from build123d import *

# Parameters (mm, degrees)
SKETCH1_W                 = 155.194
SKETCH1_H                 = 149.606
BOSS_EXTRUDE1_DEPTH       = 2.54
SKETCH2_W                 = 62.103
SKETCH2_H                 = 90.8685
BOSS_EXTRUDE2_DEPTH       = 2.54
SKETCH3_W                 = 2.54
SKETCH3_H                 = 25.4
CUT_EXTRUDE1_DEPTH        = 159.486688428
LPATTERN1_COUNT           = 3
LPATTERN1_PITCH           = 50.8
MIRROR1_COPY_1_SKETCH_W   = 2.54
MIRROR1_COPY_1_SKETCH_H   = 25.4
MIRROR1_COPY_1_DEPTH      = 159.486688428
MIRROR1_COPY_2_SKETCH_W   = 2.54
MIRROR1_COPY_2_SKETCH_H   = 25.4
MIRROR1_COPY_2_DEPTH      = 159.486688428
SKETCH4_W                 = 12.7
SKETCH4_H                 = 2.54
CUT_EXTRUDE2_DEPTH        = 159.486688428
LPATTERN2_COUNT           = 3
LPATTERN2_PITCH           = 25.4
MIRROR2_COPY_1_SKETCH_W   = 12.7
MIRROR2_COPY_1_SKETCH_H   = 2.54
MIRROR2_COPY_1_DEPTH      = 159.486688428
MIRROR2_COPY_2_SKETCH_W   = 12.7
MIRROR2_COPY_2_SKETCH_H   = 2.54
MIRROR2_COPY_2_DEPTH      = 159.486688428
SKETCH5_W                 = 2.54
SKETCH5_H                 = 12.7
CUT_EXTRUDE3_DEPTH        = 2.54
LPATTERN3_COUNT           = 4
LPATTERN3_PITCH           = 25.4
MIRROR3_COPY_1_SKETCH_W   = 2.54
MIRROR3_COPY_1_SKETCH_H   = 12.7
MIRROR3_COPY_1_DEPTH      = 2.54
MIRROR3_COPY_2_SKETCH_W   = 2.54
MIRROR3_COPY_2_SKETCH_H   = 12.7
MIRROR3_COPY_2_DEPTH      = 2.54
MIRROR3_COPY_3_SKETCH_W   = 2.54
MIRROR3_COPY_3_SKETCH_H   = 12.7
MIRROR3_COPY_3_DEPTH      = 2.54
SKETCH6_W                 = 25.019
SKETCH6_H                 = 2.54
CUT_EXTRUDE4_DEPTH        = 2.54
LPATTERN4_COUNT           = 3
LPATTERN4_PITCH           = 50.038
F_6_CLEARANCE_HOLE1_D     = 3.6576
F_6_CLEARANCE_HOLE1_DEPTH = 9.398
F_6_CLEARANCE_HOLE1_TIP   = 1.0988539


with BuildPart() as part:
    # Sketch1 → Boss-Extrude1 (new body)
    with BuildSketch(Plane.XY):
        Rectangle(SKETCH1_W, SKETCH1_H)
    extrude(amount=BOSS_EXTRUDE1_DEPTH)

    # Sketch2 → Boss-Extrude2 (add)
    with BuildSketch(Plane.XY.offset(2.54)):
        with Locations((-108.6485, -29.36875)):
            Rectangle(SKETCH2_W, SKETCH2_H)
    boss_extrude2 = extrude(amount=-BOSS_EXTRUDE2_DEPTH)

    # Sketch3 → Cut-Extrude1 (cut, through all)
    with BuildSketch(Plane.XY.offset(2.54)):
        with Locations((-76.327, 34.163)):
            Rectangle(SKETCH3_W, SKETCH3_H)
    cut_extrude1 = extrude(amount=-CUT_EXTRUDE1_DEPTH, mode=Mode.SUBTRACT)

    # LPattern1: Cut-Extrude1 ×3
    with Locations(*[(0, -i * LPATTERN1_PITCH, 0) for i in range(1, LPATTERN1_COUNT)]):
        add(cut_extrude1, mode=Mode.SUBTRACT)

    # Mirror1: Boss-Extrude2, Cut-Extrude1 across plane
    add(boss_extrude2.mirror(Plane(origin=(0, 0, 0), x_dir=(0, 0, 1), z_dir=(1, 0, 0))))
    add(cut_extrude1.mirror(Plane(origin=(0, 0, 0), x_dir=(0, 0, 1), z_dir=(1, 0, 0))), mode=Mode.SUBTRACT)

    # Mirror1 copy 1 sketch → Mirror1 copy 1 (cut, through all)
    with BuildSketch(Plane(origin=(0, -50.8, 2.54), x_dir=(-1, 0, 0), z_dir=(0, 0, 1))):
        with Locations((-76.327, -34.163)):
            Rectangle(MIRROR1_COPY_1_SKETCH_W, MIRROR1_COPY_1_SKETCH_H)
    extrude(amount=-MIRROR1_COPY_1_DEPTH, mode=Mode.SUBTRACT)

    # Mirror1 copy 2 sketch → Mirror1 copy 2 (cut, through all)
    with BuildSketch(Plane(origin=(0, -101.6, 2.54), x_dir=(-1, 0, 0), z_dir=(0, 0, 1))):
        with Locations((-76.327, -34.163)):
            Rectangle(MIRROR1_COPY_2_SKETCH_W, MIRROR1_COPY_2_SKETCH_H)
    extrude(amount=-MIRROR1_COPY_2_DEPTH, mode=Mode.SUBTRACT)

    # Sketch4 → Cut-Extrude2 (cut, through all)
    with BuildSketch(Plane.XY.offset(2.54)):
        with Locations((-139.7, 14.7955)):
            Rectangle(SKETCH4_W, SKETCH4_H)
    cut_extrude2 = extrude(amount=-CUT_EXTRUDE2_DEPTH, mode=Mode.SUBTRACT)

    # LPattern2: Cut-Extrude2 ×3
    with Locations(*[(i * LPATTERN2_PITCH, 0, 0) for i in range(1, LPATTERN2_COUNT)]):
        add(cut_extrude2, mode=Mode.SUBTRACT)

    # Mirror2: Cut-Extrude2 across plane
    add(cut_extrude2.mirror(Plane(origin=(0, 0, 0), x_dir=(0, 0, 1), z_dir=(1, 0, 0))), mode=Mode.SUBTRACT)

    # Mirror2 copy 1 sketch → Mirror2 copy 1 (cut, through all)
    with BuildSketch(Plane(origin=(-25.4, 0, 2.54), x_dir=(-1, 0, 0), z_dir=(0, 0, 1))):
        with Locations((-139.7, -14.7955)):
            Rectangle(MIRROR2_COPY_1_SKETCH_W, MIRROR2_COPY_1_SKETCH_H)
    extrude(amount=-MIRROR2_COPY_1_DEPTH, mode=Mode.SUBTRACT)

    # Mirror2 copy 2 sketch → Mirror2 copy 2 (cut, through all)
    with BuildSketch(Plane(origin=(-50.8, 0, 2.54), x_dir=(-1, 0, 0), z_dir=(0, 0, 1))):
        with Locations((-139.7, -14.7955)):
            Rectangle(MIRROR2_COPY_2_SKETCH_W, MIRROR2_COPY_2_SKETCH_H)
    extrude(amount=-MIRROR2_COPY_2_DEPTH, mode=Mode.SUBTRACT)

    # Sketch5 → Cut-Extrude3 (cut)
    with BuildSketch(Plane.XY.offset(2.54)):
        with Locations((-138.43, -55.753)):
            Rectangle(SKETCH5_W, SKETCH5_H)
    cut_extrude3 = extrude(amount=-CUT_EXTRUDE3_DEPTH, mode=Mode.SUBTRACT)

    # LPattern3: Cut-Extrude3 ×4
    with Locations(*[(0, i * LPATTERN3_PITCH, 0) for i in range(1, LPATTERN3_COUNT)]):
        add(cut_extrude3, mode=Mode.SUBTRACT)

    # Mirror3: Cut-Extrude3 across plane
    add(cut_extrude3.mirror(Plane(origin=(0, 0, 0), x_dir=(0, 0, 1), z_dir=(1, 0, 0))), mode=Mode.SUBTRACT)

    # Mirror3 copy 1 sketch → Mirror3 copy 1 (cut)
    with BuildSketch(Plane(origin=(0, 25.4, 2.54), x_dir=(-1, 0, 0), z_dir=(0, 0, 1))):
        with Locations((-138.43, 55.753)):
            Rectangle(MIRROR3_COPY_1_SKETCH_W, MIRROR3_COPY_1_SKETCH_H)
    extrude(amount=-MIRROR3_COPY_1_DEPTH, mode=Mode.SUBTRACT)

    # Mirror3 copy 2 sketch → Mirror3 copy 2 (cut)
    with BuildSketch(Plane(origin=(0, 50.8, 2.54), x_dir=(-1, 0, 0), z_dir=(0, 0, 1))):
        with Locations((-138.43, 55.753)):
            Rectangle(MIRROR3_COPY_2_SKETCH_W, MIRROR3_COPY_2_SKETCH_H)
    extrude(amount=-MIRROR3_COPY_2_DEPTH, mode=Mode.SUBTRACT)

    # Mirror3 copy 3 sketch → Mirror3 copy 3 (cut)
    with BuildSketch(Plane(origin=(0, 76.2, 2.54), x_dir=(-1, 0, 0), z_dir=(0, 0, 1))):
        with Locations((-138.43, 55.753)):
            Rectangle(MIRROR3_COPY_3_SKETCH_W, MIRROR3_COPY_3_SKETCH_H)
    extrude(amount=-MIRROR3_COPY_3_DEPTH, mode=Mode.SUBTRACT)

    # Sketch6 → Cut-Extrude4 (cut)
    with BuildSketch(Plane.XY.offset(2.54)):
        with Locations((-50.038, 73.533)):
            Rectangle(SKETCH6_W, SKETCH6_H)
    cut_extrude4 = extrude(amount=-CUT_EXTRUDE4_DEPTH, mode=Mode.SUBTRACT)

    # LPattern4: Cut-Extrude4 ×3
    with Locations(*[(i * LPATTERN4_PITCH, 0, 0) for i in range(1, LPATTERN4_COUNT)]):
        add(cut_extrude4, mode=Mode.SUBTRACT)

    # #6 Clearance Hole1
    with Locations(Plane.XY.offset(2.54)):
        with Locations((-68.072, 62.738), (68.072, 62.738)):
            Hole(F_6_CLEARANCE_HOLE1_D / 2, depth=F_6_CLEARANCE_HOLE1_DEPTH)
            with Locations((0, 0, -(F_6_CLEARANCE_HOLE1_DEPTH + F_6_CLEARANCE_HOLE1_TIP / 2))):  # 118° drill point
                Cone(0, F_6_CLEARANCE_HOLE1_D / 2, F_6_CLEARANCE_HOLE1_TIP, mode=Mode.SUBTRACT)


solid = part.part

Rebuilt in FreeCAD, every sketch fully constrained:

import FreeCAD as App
import Part
import Sketcher
from FreeCAD import Vector
Q = App.Units.Quantity


def add_polygon(sketch, points):
    """Adds a closed chain of lines whose ends are joined by coincident constraints."""
    first, n = sketch.GeometryCount, len(points)
    for a, b in zip(points, points[1:] + points[:1]):
        sketch.addGeometry(Part.LineSegment(App.Vector(*a, 0), App.Vector(*b, 0)), False)
    for i in range(n):
        sketch.addConstraint(Sketcher.Constraint("Coincident", first + i, 2, first + (i + 1) % n, 1))

doc = App.newDocument("Part")
body = doc.addObject("PartDesign::Body", "Body")

# Sketch on XY plane
sketch1 = body.newObject("Sketcher::SketchObject", "Sketch")
sketch1.AttachmentSupport = (doc.getObject("XY_Plane"), [""])
sketch1.MapMode = "FlatFace"
add_polygon(sketch1, [(-78, 75), (-78, -75), (78, -75), (78, 75)])  # lines 0-3
sketch1.addConstraint([
    Sketcher.Constraint("Vertical", 0),
    Sketcher.Constraint("Horizontal", 1),
    Sketcher.Constraint("Vertical", 2),
    Sketcher.Constraint("Horizontal", 3),
    Sketcher.Constraint("Symmetric", 0, 2, 2, 2, -1, 1),
    Sketcher.Constraint("DistanceX", 1, 1, 1, 2, Q("6.11 in")),
    Sketcher.Constraint("DistanceY", 0, 2, 0, 1, Q("5.89 in")),
])
pad1 = body.newObject("PartDesign::Pad", "Pad")
pad1.Profile = sketch1
pad1.Length = Q("0.1 in")

# Sketch on XY plane
sketch2 = body.newObject("Sketcher::SketchObject", "Sketch001")
sketch2.AttachmentSupport = (doc.getObject("XY_Plane"), [""])
sketch2.MapMode = "FlatFace"
sketch2.AttachmentOffset = App.Placement(Vector(0, 0, 0.1 * 25.4), App.Rotation())
add_polygon(sketch2, [(-140, 16), (-140, -75), (-78, -75), (-78, 16)])  # lines 0-3
sketch2.addConstraint([
    Sketcher.Constraint("Vertical", 0),
    Sketcher.Constraint("Horizontal", 1),
    Sketcher.Constraint("Vertical", 2),
    Sketcher.Constraint("Horizontal", 3),
    Sketcher.Constraint("DistanceX", 0, 2, -1, 1, Q("5.5 in")),
    Sketcher.Constraint("DistanceX", 1, 1, 1, 2, Q("2.445 in")),
    Sketcher.Constraint("DistanceY", 0, 2, 0, 1, Q("3.5775 in")),
    Sketcher.Constraint("DistanceY", 0, 2, -1, 1, Q("2.945 in")),
])
pad2 = body.newObject("PartDesign::Pad", "Pad001")
pad2.Profile = sketch2
pad2.Length = Q("0.1 in")
pad2.Reversed = True

# Sketch on XY plane
sketch3 = body.newObject("Sketcher::SketchObject", "Sketch002")
sketch3.AttachmentSupport = (doc.getObject("XY_Plane"), [""])
sketch3.MapMode = "FlatFace"
sketch3.AttachmentOffset = App.Placement(Vector(0, 0, 0.1 * 25.4), App.Rotation())
add_polygon(sketch3, [(-77.6, 46.9), (-77.6, 21.5), (-75.1, 21.5), (-75.1, 46.9)])  # lines 0-3
sketch3.addConstraint([
    Sketcher.Constraint("Vertical", 0),
    Sketcher.Constraint("Horizontal", 1),
    Sketcher.Constraint("Vertical", 2),
    Sketcher.Constraint("Horizontal", 3),
    Sketcher.Constraint("DistanceY", 0, 2, 0, 1, Q("1 in")),
    Sketcher.Constraint("DistanceX", 1, 1, 1, 2, Q("0.1 in")),
    Sketcher.Constraint("DistanceX", 0, 2, -1, 1, Q("3.055 in")),
    Sketcher.Constraint("DistanceY", -1, 1, 0, 2, Q("0.845 in")),
])
pocket1 = body.newObject("PartDesign::Pocket", "Pocket")
pocket1.Profile = sketch3
pocket1.Type = "ThroughAll"
doc.recompute()

linearpattern = body.newObject("PartDesign::LinearPattern", "LinearPattern")
linearpattern.Originals = [pocket1]
linearpattern.Direction = (doc.getObject("Y_Axis"), [""])
linearpattern.Mode = "offset"
linearpattern.Offset = Q("2 in")
linearpattern.Occurrences = 3
linearpattern.Reversed = True
body.Tip = linearpattern
doc.recompute()

mirrored = body.newObject("PartDesign::Mirrored", "Mirrored")
mirrored.Originals = [pad2, pocket1]
mirrored.MirrorPlane = (doc.getObject("YZ_Plane"), [""])
body.Tip = mirrored

# Sketch on XY plane
sketch4 = body.newObject("Sketcher::SketchObject", "Sketch003")
sketch4.AttachmentSupport = (doc.getObject("XY_Plane"), [""])
sketch4.MapMode = "FlatFace"
sketch4.AttachmentOffset = App.Placement(Vector(0, 0, 0.1 * 25.4), App.Rotation())
add_polygon(sketch4, [(77.6, -29.3), (77.6, -3.9), (75.1, -3.9), (75.1, -29.3)])  # lines 0-3
sketch4.addConstraint([
    Sketcher.Constraint("Vertical", 0),
    Sketcher.Constraint("Horizontal", 1),
    Sketcher.Constraint("Vertical", 2),
    Sketcher.Constraint("Horizontal", 3),
    Sketcher.Constraint("DistanceY", 0, 1, 0, 2, Q("1 in")),
    Sketcher.Constraint("DistanceX", 1, 2, 1, 1, Q("0.1 in")),
    Sketcher.Constraint("DistanceX", -1, 1, 0, 2, Q("3.055 in")),
    Sketcher.Constraint("DistanceY", 0, 2, -1, 1, Q("0.155 in")),
])
pocket2 = body.newObject("PartDesign::Pocket", "Pocket001")
pocket2.Profile = sketch4
pocket2.Type = "ThroughAll"

# Sketch on XY plane
sketch5 = body.newObject("Sketcher::SketchObject", "Sketch004")
sketch5.AttachmentSupport = (doc.getObject("XY_Plane"), [""])
sketch5.MapMode = "FlatFace"
sketch5.AttachmentOffset = App.Placement(Vector(0, 0, 0.1 * 25.4), App.Rotation())
add_polygon(sketch5, [(77.6, -80.1), (77.6, -54.7), (75.1, -54.7), (75.1, -80.1)])  # lines 0-3
sketch5.addConstraint([
    Sketcher.Constraint("Vertical", 0),
    Sketcher.Constraint("Horizontal", 1),
    Sketcher.Constraint("Vertical", 2),
    Sketcher.Constraint("Horizontal", 3),
    Sketcher.Constraint("DistanceY", 0, 1, 0, 2, Q("1 in")),
    Sketcher.Constraint("DistanceX", 1, 2, 1, 1, Q("0.1 in")),
    Sketcher.Constraint("DistanceX", -1, 1, 0, 2, Q("3.055 in")),
    Sketcher.Constraint("DistanceY", 0, 2, -1, 1, Q("2.155 in")),
])
pocket3 = body.newObject("PartDesign::Pocket", "Pocket002")
pocket3.Profile = sketch5
pocket3.Type = "ThroughAll"

# Sketch on XY plane
sketch6 = body.newObject("Sketcher::SketchObject", "Sketch005")
sketch6.AttachmentSupport = (doc.getObject("XY_Plane"), [""])
sketch6.MapMode = "FlatFace"
sketch6.AttachmentOffset = App.Placement(Vector(0, 0, 0.1 * 25.4), App.Rotation())
add_polygon(sketch6, [(-146.1, 16.1), (-146.1, 13.5), (-133.3, 13.5), (-133.3, 16.1)])  # lines 0-3
sketch6.addConstraint([
    Sketcher.Constraint("Vertical", 0),
    Sketcher.Constraint("Horizontal", 1),
    Sketcher.Constraint("Vertical", 2),
    Sketcher.Constraint("Horizontal", 3),
    Sketcher.Constraint("DistanceX", 1, 1, 1, 2, Q("0.5 in")),
    Sketcher.Constraint("DistanceY", 0, 2, 0, 1, Q("0.1 in")),
    Sketcher.Constraint("DistanceX", 0, 2, -1, 1, Q("5.75 in")),
    Sketcher.Constraint("DistanceY", -1, 1, 0, 2, Q("0.5325 in")),
])
pocket4 = body.newObject("PartDesign::Pocket", "Pocket003")
pocket4.Profile = sketch6
pocket4.Type = "ThroughAll"
doc.recompute()

linearpattern2 = body.newObject("PartDesign::LinearPattern", "LinearPattern001")
linearpattern2.Originals = [pocket4]
linearpattern2.Direction = (doc.getObject("X_Axis"), [""])
linearpattern2.Mode = "offset"
linearpattern2.Offset = Q("1 in")
linearpattern2.Occurrences = 3
body.Tip = linearpattern2
doc.recompute()

mirrored2 = body.newObject("PartDesign::Mirrored", "Mirrored001")
mirrored2.Originals = [pocket4]
mirrored2.MirrorPlane = (doc.getObject("YZ_Plane"), [""])
body.Tip = mirrored2

# Sketch on XY plane
sketch7 = body.newObject("Sketcher::SketchObject", "Sketch006")
sketch7.AttachmentSupport = (doc.getObject("XY_Plane"), [""])
sketch7.MapMode = "FlatFace"
sketch7.AttachmentOffset = App.Placement(Vector(0, 0, 0.1 * 25.4), App.Rotation())
add_polygon(sketch7, [(120.7, 13.5), (120.7, 16.1), (108, 16.1), (108, 13.5)])  # lines 0-3
sketch7.addConstraint([
    Sketcher.Constraint("Vertical", 0),
    Sketcher.Constraint("Horizontal", 1),
    Sketcher.Constraint("Vertical", 2),
    Sketcher.Constraint("Horizontal", 3),
    Sketcher.Constraint("DistanceX", 1, 2, 1, 1, Q("0.5 in")),
    Sketcher.Constraint("DistanceY", 0, 1, 0, 2, Q("0.1 in")),
    Sketcher.Constraint("DistanceX", -1, 1, 0, 2, Q("4.75 in")),
    Sketcher.Constraint("DistanceY", -1, 1, 0, 2, Q("0.6325 in")),
])
pocket5 = body.newObject("PartDesign::Pocket", "Pocket004")
pocket5.Profile = sketch7
pocket5.Type = "ThroughAll"

# Sketch on XY plane
sketch8 = body.newObject("Sketcher::SketchObject", "Sketch007")
sketch8.AttachmentSupport = (doc.getObject("XY_Plane"), [""])
sketch8.MapMode = "FlatFace"
sketch8.AttachmentOffset = App.Placement(Vector(0, 0, 0.1 * 25.4), App.Rotation())
add_polygon(sketch8, [(95.2, 13.5), (95.2, 16.1), (82.5, 16.1), (82.5, 13.5)])  # lines 0-3
sketch8.addConstraint([
    Sketcher.Constraint("Vertical", 0),
    Sketcher.Constraint("Horizontal", 1),
    Sketcher.Constraint("Vertical", 2),
    Sketcher.Constraint("Horizontal", 3),
    Sketcher.Constraint("DistanceX", 1, 2, 1, 1, Q("0.5 in")),
    Sketcher.Constraint("DistanceY", 0, 1, 0, 2, Q("0.1 in")),
    Sketcher.Constraint("DistanceX", -1, 1, 0, 2, Q("3.75 in")),
    Sketcher.Constraint("DistanceY", -1, 1, 0, 2, Q("0.6325 in")),
])
pocket6 = body.newObject("PartDesign::Pocket", "Pocket005")
pocket6.Profile = sketch8
pocket6.Type = "ThroughAll"

# Sketch on XY plane
sketch9 = body.newObject("Sketcher::SketchObject", "Sketch008")
sketch9.AttachmentSupport = (doc.getObject("XY_Plane"), [""])
sketch9.MapMode = "FlatFace"
sketch9.AttachmentOffset = App.Placement(Vector(0, 0, 0.1 * 25.4), App.Rotation())
add_polygon(sketch9, [(-139.7, -49.4), (-139.7, -62.1), (-137.2, -62.1), (-137.2, -49.4)])  # lines 0-3
sketch9.addConstraint([
    Sketcher.Constraint("Vertical", 0),
    Sketcher.Constraint("Horizontal", 1),
    Sketcher.Constraint("Vertical", 2),
    Sketcher.Constraint("Horizontal", 3),
    Sketcher.Constraint("DistanceX", 1, 1, 1, 2, Q("0.1 in")),
    Sketcher.Constraint("DistanceY", 0, 2, 0, 1, Q("0.5 in")),
    Sketcher.Constraint("DistanceX", 0, 2, -1, 1, Q("5.5 in")),
    Sketcher.Constraint("DistanceY", 0, 2, -1, 1, Q("2.445 in")),
])
pocket7 = body.newObject("PartDesign::Pocket", "Pocket006")
pocket7.Profile = sketch9
pocket7.Length = Q("0.1 in")
doc.recompute()

linearpattern3 = body.newObject("PartDesign::LinearPattern", "LinearPattern002")
linearpattern3.Originals = [pocket7]
linearpattern3.Direction = (doc.getObject("Y_Axis"), [""])
linearpattern3.Mode = "offset"
linearpattern3.Offset = Q("1 in")
linearpattern3.Occurrences = 4
body.Tip = linearpattern3
doc.recompute()

mirrored3 = body.newObject("PartDesign::Mirrored", "Mirrored002")
mirrored3.Originals = [pocket7]
mirrored3.MirrorPlane = (doc.getObject("YZ_Plane"), [""])
body.Tip = mirrored3

# Sketch on XY plane
sketch10 = body.newObject("Sketcher::SketchObject", "Sketch009")
sketch10.AttachmentSupport = (doc.getObject("XY_Plane"), [""])
sketch10.MapMode = "FlatFace"
sketch10.AttachmentOffset = App.Placement(Vector(0, 0, 0.1 * 25.4), App.Rotation())
add_polygon(sketch10, [(139.7, -36.7), (139.7, -24), (137.2, -24), (137.2, -36.7)])  # lines 0-3
sketch10.addConstraint([
    Sketcher.Constraint("Vertical", 0),
    Sketcher.Constraint("Horizontal", 1),
    Sketcher.Constraint("Vertical", 2),
    Sketcher.Constraint("Horizontal", 3),
    Sketcher.Constraint("DistanceX", 1, 2, 1, 1, Q("0.1 in")),
    Sketcher.Constraint("DistanceY", 0, 1, 0, 2, Q("0.5 in")),
    Sketcher.Constraint("DistanceX", -1, 1, 0, 2, Q("5.5 in")),
    Sketcher.Constraint("DistanceY", 0, 2, -1, 1, Q("0.945 in")),
])
pocket8 = body.newObject("PartDesign::Pocket", "Pocket007")
pocket8.Profile = sketch10
pocket8.Length = Q("0.1 in")

# Sketch on XY plane
sketch11 = body.newObject("Sketcher::SketchObject", "Sketch010")
sketch11.AttachmentSupport = (doc.getObject("XY_Plane"), [""])
sketch11.MapMode = "FlatFace"
sketch11.AttachmentOffset = App.Placement(Vector(0, 0, 0.1 * 25.4), App.Rotation())
add_polygon(sketch11, [(139.7, -11.3), (139.7, 1.4), (137.2, 1.4), (137.2, -11.3)])  # lines 0-3
sketch11.addConstraint([
    Sketcher.Constraint("Vertical", 0),
    Sketcher.Constraint("Horizontal", 1),
    Sketcher.Constraint("Vertical", 2),
    Sketcher.Constraint("Horizontal", 3),
    Sketcher.Constraint("DistanceX", 1, 2, 1, 1, Q("0.1 in")),
    Sketcher.Constraint("DistanceY", 0, 1, 0, 2, Q("0.5 in")),
    Sketcher.Constraint("DistanceX", -1, 1, 0, 2, Q("5.5 in")),
    Sketcher.Constraint("DistanceY", -1, 1, 0, 2, Q("0.055 in")),
])
pocket9 = body.newObject("PartDesign::Pocket", "Pocket008")
pocket9.Profile = sketch11
pocket9.Length = Q("0.1 in")

# Sketch on XY plane
sketch12 = body.newObject("Sketcher::SketchObject", "Sketch011")
sketch12.AttachmentSupport = (doc.getObject("XY_Plane"), [""])
sketch12.MapMode = "FlatFace"
sketch12.AttachmentOffset = App.Placement(Vector(0, 0, 0.1 * 25.4), App.Rotation())
add_polygon(sketch12, [(139.7, 14.1), (139.7, 26.8), (137.2, 26.8), (137.2, 14.1)])  # lines 0-3
sketch12.addConstraint([
    Sketcher.Constraint("Vertical", 0),
    Sketcher.Constraint("Horizontal", 1),
    Sketcher.Constraint("Vertical", 2),
    Sketcher.Constraint("Horizontal", 3),
    Sketcher.Constraint("DistanceX", 1, 2, 1, 1, Q("0.1 in")),
    Sketcher.Constraint("DistanceY", 0, 1, 0, 2, Q("0.5 in")),
    Sketcher.Constraint("DistanceX", -1, 1, 0, 2, Q("5.5 in")),
    Sketcher.Constraint("DistanceY", -1, 1, 0, 2, Q("1.055 in")),
])
pocket10 = body.newObject("PartDesign::Pocket", "Pocket009")
pocket10.Profile = sketch12
pocket10.Length = Q("0.1 in")

# Sketch on XY plane
sketch13 = body.newObject("Sketcher::SketchObject", "Sketch012")
sketch13.AttachmentSupport = (doc.getObject("XY_Plane"), [""])
sketch13.MapMode = "FlatFace"
sketch13.AttachmentOffset = App.Placement(Vector(0, 0, 0.1 * 25.4), App.Rotation())
add_polygon(sketch13, [(-62.5, 74.8), (-62.5, 72.3), (-37.5, 72.3), (-37.5, 74.8)])  # lines 0-3
sketch13.addConstraint([
    Sketcher.Constraint("Vertical", 0),
    Sketcher.Constraint("Horizontal", 1),
    Sketcher.Constraint("Vertical", 2),
    Sketcher.Constraint("Horizontal", 3),
    Sketcher.Constraint("DistanceY", 0, 2, 0, 1, Q("0.1 in")),
    Sketcher.Constraint("DistanceX", 1, 1, 1, 2, Q("0.985 in")),
    Sketcher.Constraint("DistanceY", -1, 1, 0, 2, Q("2.845 in")),
    Sketcher.Constraint("DistanceX", 0, 2, -1, 1, Q("2.4625 in")),
])
pocket11 = body.newObject("PartDesign::Pocket", "Pocket010")
pocket11.Profile = sketch13
pocket11.Length = Q("0.1 in")
doc.recompute()

linearpattern4 = body.newObject("PartDesign::LinearPattern", "LinearPattern003")
linearpattern4.Originals = [pocket11]
linearpattern4.Direction = (doc.getObject("X_Axis"), [""])
linearpattern4.Mode = "offset"
linearpattern4.Offset = Q("1.97 in")
linearpattern4.Occurrences = 3
body.Tip = linearpattern4

# Sketch on XY plane
sketch14 = body.newObject("Sketcher::SketchObject", "Sketch013")
sketch14.AttachmentSupport = (doc.getObject("XY_Plane"), [""])
sketch14.MapMode = "FlatFace"
sketch14.AttachmentOffset = App.Placement(Vector(0, 0, 0.1 * 25.4), App.Rotation())
sketch14.addGeometry([
    Part.Circle(Vector(-68.1, 62.7, 0), Vector(0, 0, 1), 1.8),
    Part.Circle(Vector(68.1, 62.7, 0), Vector(0, 0, 1), 1.8),
], False)
sketch14.addConstraint([
    Sketcher.Constraint("Equal", 0, 1),
    Sketcher.Constraint("Symmetric", 0, 3, 1, 3, -2),
    Sketcher.Constraint("Diameter", 0, Q("0.144 in")),
    Sketcher.Constraint("DistanceX", 0, 3, -1, 1, Q("2.68 in")),
    Sketcher.Constraint("DistanceY", -1, 1, 0, 3, Q("2.47 in")),
])
doc.recompute()
hole = body.newObject("PartDesign::Hole", "Hole")
hole.Profile = sketch14
hole.ThreadType = "None"
hole.Diameter = Q("0.144 in")
hole.DepthType = "Dimension"
hole.Depth = Q("0.37 in")
hole.DrillPoint = "Angled"
hole.DrillPointAngle = 118

doc.recompute()
